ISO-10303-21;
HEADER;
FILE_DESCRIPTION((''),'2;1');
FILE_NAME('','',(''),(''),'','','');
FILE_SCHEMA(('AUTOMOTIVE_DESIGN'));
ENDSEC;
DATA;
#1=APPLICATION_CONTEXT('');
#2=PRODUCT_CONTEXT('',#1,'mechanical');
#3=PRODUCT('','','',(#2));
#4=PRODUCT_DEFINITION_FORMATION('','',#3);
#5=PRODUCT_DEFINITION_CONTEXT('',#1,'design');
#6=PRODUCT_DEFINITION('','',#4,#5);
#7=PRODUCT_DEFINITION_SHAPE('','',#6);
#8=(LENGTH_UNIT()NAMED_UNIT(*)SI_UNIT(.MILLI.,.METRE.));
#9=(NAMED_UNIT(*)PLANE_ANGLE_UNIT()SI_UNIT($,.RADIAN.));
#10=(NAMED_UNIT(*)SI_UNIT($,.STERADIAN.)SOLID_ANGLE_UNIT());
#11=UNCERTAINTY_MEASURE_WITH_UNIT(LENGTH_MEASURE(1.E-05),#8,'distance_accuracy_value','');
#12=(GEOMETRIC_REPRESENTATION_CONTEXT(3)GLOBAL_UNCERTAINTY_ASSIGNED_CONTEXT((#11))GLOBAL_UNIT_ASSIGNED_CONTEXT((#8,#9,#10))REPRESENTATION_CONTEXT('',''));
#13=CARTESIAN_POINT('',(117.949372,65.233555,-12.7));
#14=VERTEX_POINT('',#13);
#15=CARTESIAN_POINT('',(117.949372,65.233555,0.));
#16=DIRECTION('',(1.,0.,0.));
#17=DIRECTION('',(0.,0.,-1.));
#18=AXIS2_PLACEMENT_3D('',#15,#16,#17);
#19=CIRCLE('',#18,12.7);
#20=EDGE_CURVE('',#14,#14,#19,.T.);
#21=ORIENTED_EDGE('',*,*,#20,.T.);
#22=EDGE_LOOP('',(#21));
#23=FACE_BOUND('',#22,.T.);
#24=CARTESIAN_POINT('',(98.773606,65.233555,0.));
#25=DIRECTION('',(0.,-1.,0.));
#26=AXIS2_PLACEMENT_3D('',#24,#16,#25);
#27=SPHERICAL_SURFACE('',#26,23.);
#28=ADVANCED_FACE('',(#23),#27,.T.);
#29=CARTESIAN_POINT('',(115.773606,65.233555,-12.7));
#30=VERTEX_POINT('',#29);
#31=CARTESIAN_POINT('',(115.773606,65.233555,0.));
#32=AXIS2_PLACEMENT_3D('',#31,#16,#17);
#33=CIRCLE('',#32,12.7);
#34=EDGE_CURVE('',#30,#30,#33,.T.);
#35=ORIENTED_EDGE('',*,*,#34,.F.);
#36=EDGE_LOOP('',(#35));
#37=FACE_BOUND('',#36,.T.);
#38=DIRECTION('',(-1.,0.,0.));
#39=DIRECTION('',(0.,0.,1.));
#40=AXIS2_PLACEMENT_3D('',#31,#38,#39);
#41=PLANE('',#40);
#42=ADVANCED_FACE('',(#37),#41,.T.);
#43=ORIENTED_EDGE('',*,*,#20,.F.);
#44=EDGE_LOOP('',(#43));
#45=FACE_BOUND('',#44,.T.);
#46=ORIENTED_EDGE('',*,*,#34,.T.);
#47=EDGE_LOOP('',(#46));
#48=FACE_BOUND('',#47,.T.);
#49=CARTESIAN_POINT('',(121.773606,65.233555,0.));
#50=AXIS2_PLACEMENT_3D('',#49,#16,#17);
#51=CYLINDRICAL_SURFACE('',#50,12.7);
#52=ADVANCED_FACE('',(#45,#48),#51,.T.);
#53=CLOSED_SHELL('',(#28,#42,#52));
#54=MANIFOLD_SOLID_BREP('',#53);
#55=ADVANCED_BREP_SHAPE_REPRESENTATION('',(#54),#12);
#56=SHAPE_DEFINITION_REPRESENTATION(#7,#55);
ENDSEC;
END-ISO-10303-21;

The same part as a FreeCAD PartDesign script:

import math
import FreeCAD as App
import Part
import Sketcher

V = App.Vector
Q = App.Units.Quantity

doc = App.newDocument("Part")
body = doc.addObject("PartDesign::Body", "Body")

# Sketch on XY plane
sketch1 = doc.addObject("Sketcher::SketchObject", "Sketch")
body.addObject(sketch1)
sketch1.AttachmentSupport = (doc.XY_Plane, [""])
sketch1.MapMode = "FlatFace"
sketch1.addGeometry([
    Part.LineSegment(V(115.773606, 77.933555, 0), V(115.773606, 65.233555, 0)),
    Part.LineSegment(V(115.773606, 65.233555, 0), V(121.773606, 65.233555, 0)),
    Part.ArcOfCircle(Part.Circle(V(98.773606, 65.233555, 0), V(0, 0, 1), 23), math.radians(0), math.radians(33.516281)),
    Part.LineSegment(V(117.949372, 77.933555, 0), V(115.773606, 77.933555, 0)),
], False)
sketch1.addGeometry(Part.LineSegment(V(121.773606, 65.233555, 0), V(98.773606, 65.233555, 0)), True)  # axis
sketch1.addConstraint([
    Sketcher.Constraint("Coincident", 0, 2, 1, 1),
    Sketcher.Constraint("Coincident", 1, 2, 2, 1),
    Sketcher.Constraint("Coincident", 2, 2, 3, 1),
    Sketcher.Constraint("Coincident", 3, 2, 0, 1),
    Sketcher.Constraint("Vertical", 0),
    Sketcher.Constraint("Horizontal", 1),
    Sketcher.Constraint("Horizontal", 3),
    Sketcher.Constraint("Horizontal", 4),
    Sketcher.Constraint("Coincident", 4, 1, 1, 2),
    Sketcher.Constraint("Coincident", 4, 2, 2, 3),
    Sketcher.Constraint("Radius", 2, Q("23 mm")),
    Sketcher.Constraint("DistanceX", 1, 1, 1, 2, Q("6 mm")),
    Sketcher.Constraint("DistanceY", 0, 2, 0, 1, Q("12.7 mm")),
    Sketcher.Constraint("DistanceX", -1, 1, 2, 3, Q("98.773606 mm")),
    Sketcher.Constraint("DistanceY", -1, 1, 2, 3, Q("65.233555 mm")),
])
revolution = doc.addObject("PartDesign::Revolution", "Revolution")
body.addObject(revolution)
revolution.Profile = sketch1
revolution.ReferenceAxis = (sketch1, ["Axis0"])
revolution.Angle = 360

doc.recompute()
